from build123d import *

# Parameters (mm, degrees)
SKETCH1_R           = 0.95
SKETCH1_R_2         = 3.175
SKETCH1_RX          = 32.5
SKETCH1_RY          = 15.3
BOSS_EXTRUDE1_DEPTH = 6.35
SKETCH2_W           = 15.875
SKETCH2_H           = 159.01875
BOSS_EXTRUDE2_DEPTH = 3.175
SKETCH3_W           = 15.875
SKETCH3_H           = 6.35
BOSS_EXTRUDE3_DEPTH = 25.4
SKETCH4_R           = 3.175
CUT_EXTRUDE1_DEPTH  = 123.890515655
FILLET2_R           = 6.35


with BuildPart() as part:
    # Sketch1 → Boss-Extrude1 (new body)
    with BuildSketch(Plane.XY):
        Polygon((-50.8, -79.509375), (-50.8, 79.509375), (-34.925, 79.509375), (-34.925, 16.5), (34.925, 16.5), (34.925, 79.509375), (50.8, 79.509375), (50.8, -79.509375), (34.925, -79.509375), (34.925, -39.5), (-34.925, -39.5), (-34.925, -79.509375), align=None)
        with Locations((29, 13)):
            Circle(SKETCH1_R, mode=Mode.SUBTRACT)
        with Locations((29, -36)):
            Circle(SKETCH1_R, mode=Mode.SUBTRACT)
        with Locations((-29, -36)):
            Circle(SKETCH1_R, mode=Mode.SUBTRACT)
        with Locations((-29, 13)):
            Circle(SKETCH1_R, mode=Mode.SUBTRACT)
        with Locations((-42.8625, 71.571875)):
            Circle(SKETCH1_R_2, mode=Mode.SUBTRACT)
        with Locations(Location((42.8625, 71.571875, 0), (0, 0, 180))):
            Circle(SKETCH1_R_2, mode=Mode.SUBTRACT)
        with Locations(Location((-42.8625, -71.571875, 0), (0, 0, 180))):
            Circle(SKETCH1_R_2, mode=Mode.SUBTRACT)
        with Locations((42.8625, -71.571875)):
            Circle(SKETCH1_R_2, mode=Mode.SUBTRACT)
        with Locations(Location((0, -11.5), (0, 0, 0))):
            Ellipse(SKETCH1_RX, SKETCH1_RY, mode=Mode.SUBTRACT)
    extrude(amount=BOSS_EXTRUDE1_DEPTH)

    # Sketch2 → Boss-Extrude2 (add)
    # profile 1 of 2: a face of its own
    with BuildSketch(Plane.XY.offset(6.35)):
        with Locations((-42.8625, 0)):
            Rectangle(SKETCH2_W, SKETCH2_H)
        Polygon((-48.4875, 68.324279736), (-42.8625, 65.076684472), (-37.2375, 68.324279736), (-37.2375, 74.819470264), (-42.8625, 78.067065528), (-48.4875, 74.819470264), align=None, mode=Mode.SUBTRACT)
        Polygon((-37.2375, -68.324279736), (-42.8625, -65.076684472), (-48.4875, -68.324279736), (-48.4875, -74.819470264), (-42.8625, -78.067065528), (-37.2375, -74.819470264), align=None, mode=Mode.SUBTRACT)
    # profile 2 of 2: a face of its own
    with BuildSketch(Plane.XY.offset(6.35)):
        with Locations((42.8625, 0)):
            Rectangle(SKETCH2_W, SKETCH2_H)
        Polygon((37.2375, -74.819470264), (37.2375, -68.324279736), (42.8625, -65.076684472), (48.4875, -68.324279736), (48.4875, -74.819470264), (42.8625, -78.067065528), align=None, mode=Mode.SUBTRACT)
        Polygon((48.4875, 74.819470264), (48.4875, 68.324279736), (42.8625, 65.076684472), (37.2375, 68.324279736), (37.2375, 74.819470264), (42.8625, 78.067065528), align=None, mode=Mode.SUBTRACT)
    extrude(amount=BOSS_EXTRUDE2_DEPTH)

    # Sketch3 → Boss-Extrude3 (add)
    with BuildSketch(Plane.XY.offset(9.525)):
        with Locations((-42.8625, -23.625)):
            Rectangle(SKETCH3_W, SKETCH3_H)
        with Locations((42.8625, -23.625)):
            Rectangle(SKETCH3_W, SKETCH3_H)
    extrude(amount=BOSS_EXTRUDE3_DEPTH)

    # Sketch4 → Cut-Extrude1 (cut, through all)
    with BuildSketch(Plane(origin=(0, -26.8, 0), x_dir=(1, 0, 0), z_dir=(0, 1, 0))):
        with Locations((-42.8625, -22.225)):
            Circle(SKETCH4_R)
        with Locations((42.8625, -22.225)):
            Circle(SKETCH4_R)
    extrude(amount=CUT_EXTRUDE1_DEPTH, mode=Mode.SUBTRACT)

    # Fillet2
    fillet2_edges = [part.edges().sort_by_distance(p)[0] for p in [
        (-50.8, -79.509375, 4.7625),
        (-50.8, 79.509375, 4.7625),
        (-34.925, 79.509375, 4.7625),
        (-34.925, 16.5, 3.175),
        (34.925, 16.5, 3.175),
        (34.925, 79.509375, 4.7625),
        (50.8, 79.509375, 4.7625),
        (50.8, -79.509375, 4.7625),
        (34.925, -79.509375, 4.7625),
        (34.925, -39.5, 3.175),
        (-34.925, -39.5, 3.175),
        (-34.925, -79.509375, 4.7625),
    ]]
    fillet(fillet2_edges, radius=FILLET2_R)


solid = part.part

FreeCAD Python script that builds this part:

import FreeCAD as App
import Part
import Sketcher

V = App.Vector
Q = App.Units.Quantity


def edges_at(feature, points):
    """Names of the edges that pass closest to the given points."""
    edges = feature.Shape.Edges
    near = lambda p: min(range(len(edges)), key=lambda i: edges[i].distToShape(Part.Vertex(*p))[0])
    return sorted({f"Edge{near(p) + 1}" for p in points})


def add_polygon(sketch, points):
    """Adds a closed chain of lines whose ends are joined by coincident constraints."""
    first, n = sketch.GeometryCount, len(points)
    for a, b in zip(points, points[1:] + points[:1]):
        sketch.addGeometry(Part.LineSegment(App.Vector(*a, 0), App.Vector(*b, 0)), False)
    for i in range(n):
        sketch.addConstraint(Sketcher.Constraint("Coincident", first + i, 2, first + (i + 1) % n, 1))

doc = App.newDocument("Part")
body = doc.addObject("PartDesign::Body", "Body")

sketch1 = body.newObject("Sketcher::SketchObject", "Sketch")
sketch1.AttachmentSupport = (doc.getObject("XY_Plane"), [""])
sketch1.MapMode = "FlatFace"
add_polygon(sketch1, [(-50.8, 79.509375), (-50.8, -79.509375), (-34.925, -79.509375), (-34.925, -39.5), (34.925, -39.5), (34.925, -79.509375), (50.8, -79.509375), (50.8, 79.509375), (34.925, 79.509375), (34.925, 16.5), (-34.925, 16.5), (-34.925, 79.509375)])
sketch1.addGeometry(Part.Circle(V(42.8625, -71.571875, 0), V(0, 0, 1), 3.175), False)
sketch1.addGeometry(Part.Circle(V(29, -36, 0), V(0, 0, 1), 0.95), False)
sketch1.addGeometry(Part.Circle(V(-42.8625, -71.571875, 0), V(0, 0, 1), 3.175), False)
sketch1.addGeometry(Part.Ellipse(V(32.5, -11.5, 0), V(0, 3.8, 0), V(0, -11.5, 0)), False)
sketch1.addGeometry(Part.Circle(V(-29, -36, 0), V(0, 0, 1), 0.95), False)
sketch1.addGeometry(Part.Circle(V(29, 13, 0), V(0, 0, 1), 0.95), False)
sketch1.addGeometry(Part.Circle(V(42.8625, 71.571875, 0), V(0, 0, 1), 3.175), False)
sketch1.addGeometry(Part.Circle(V(-29, 13, 0), V(0, 0, 1), 0.95), False)
sketch1.addGeometry(Part.Circle(V(-42.8625, 71.571875, 0), V(0, 0, 1), 3.175), False)
sketch1.addConstraint(Sketcher.Constraint("Block", 15))
sketch1.addConstraint(Sketcher.Constraint("Vertical", 0))
sketch1.addConstraint(Sketcher.Constraint("Horizontal", 1))
sketch1.addConstraint(Sketcher.Constraint("Vertical", 2))
sketch1.addConstraint(Sketcher.Constraint("Horizontal", 3))
sketch1.addConstraint(Sketcher.Constraint("Vertical", 4))
sketch1.addConstraint(Sketcher.Constraint("Horizontal", 5))
sketch1.addConstraint(Sketcher.Constraint("Vertical", 6))
sketch1.addConstraint(Sketcher.Constraint("Horizontal", 7))
sketch1.addConstraint(Sketcher.Constraint("Vertical", 8))
sketch1.addConstraint(Sketcher.Constraint("Horizontal", 9))
sketch1.addConstraint(Sketcher.Constraint("Vertical", 10))
sketch1.addConstraint(Sketcher.Constraint("Horizontal", 11))
sketch1.addConstraint(Sketcher.Constraint("Equal", 12, 14))
sketch1.addConstraint(Sketcher.Constraint("Equal", 13, 16))
sketch1.addConstraint(Sketcher.Constraint("Equal", 16, 17))
sketch1.addConstraint(Sketcher.Constraint("Equal", 14, 18))
sketch1.addConstraint(Sketcher.Constraint("Equal", 17, 19))
sketch1.addConstraint(Sketcher.Constraint("Equal", 18, 20))
sketch1.addConstraint(Sketcher.Constraint("Symmetric", 14, 3, 18, 3, -1, 1))
sketch1.addConstraint(Sketcher.Constraint("Symmetric", 12, 3, 20, 3, -1, 1))
sketch1.addConstraint(Sketcher.Constraint("Symmetric", 0, 2, 6, 2, -1, 1))
sketch1.addConstraint(Sketcher.Constraint("Symmetric", 4, 2, 10, 2, -1, 1))
sketch1.addConstraint(Sketcher.Constraint("Symmetric", 12, 3, 14, 3, -2))
sketch1.addConstraint(Sketcher.Constraint("Symmetric", 13, 3, 16, 3, -2))
sketch1.addConstraint(Sketcher.Constraint("Symmetric", 17, 3, 19, 3, -2))
sketch1.addConstraint(Sketcher.Constraint("Symmetric", 1, 2, 4, 2, -2))
sketch1.addConstraint(Sketcher.Constraint("Vertical", 13, 3, 17, 3))
sketch1.addConstraint(Sketcher.Constraint("Vertical", 4, 2, 7, 2))
sketch1.addConstraint(Sketcher.Constraint("Diameter", 12, Q("0.25 in")))
sketch1.addConstraint(Sketcher.Constraint("DistanceX", 0, 2, -1, 1, Q("2 in")))
sketch1.addConstraint(Sketcher.Constraint("DistanceX", 3, 1, 3, 2, Q("2.75 in")))
sketch1.addConstraint(Sketcher.Constraint("Diameter", 13, Q("1.9 mm")))
sketch1.addConstraint(Sketcher.Constraint("DistanceX", -1, 1, 12, 3, Q("1.6875 in")))
sketch1.addConstraint(Sketcher.Constraint("DistanceY", 0, 2, 14, 3, Q("0.3125 in")))
sketch1.addConstraint(Sketcher.Constraint("DistanceY", 0, 2, 0, 1, Q("159.01875 mm")))
sketch1.addConstraint(Sketcher.Constraint("DistanceX", -1, 1, 13, 3, Q("29 mm")))
sketch1.addConstraint(Sketcher.Constraint("DistanceY", 13, 3, -1, 1, Q("36 mm")))
sketch1.addConstraint(Sketcher.Constraint("DistanceY", -1, 1, 17, 3, Q("13 mm")))
sketch1.addConstraint(Sketcher.Constraint("DistanceY", 2, 2, -1, 1, Q("39.5 mm")))
sketch1.addConstraint(Sketcher.Constraint("DistanceY", -1, 1, 8, 2, Q("16.5 mm")))
pad1 = body.newObject("PartDesign::Pad", "Pad")
pad1.Profile = sketch1
pad1.Length = Q("0.25 in")

sketch2 = body.newObject("Sketcher::SketchObject", "Sketch001")
sketch2.AttachmentSupport = (doc.getObject("XY_Plane"), [""])
sketch2.MapMode = "FlatFace"
sketch2.AttachmentOffset = App.Placement(V(0, 0, 0.25 * 25.4), App.Rotation())
add_polygon(sketch2, [(-50.8, 79.509375), (-50.8, -79.509375), (-34.925, -79.509375), (-34.925, 79.509375)])
add_polygon(sketch2, [(-42.8625, -65.076684), (-37.2375, -68.32428), (-37.2375, -74.81947), (-42.8625, -78.067066), (-48.4875, -74.81947), (-48.4875, -68.32428)])
add_polygon(sketch2, [(-42.8625, 65.076684), (-48.4875, 68.32428), (-48.4875, 74.81947), (-42.8625, 78.067066), (-37.2375, 74.81947), (-37.2375, 68.32428)])
add_polygon(sketch2, [(34.925, 79.509375), (34.925, -79.509375), (50.8, -79.509375), (50.8, 79.509375)])
add_polygon(sketch2, [(42.8625, -78.067066), (37.2375, -74.81947), (37.2375, -68.32428), (42.8625, -65.076684), (48.4875, -68.32428), (48.4875, -74.81947)])
add_polygon(sketch2, [(42.8625, 78.067066), (48.4875, 74.81947), (48.4875, 68.32428), (42.8625, 65.076684), (37.2375, 68.32428), (37.2375, 74.81947)])
sketch2.addConstraint(Sketcher.Constraint("Vertical", 0))
sketch2.addConstraint(Sketcher.Constraint("Horizontal", 1))
sketch2.addConstraint(Sketcher.Constraint("Vertical", 2))
sketch2.addConstraint(Sketcher.Constraint("Horizontal", 3))
sketch2.addConstraint(Sketcher.Constraint("Vertical", 5))
sketch2.addConstraint(Sketcher.Constraint("Vertical", 8))
sketch2.addConstraint(Sketcher.Constraint("Vertical", 11))
sketch2.addConstraint(Sketcher.Constraint("Vertical", 14))
sketch2.addConstraint(Sketcher.Constraint("Vertical", 16))
sketch2.addConstraint(Sketcher.Constraint("Horizontal", 17))
sketch2.addConstraint(Sketcher.Constraint("Vertical", 18))
sketch2.addConstraint(Sketcher.Constraint("Horizontal", 19))
sketch2.addConstraint(Sketcher.Constraint("Vertical", 21))
sketch2.addConstraint(Sketcher.Constraint("Vertical", 24))
sketch2.addConstraint(Sketcher.Constraint("Vertical", 27))
sketch2.addConstraint(Sketcher.Constraint("Vertical", 30))
sketch2.addConstraint(Sketcher.Constraint("Symmetric", 2, 2, 16, 2, -1, 1))
sketch2.addConstraint(Sketcher.Constraint("Symmetric", 0, 2, 18, 2, -1, 1))
sketch2.addConstraint(Sketcher.Constraint("Symmetric", 13, 2, 20, 2, -1, 1))
sketch2.addConstraint(Sketcher.Constraint("Symmetric", 15, 2, 22, 2, -1, 1))
sketch2.addConstraint(Sketcher.Constraint("Symmetric", 10, 2, 23, 2, -1, 1))
sketch2.addConstraint(Sketcher.Constraint("Symmetric", 12, 2, 25, 2, -1, 1))
sketch2.addConstraint(Sketcher.Constraint("Symmetric", 7, 2, 26, 2, -1, 1))
sketch2.addConstraint(Sketcher.Constraint("Symmetric", 9, 2, 28, 2, -1, 1))
sketch2.addConstraint(Sketcher.Constraint("Symmetric", 4, 2, 29, 2, -1, 1))
sketch2.addConstraint(Sketcher.Constraint("Symmetric", 6, 2, 31, 2, -1, 1))
sketch2.addConstraint(Sketcher.Constraint("Symmetric", 5, 2, 20, 2, -2))
sketch2.addConstraint(Sketcher.Constraint("Symmetric", 9, 2, 22, 2, -2))
sketch2.addConstraint(Sketcher.Constraint("Symmetric", 8, 2, 23, 2, -2))
sketch2.addConstraint(Sketcher.Constraint("Symmetric", 6, 2, 25, 2, -2))
sketch2.addConstraint(Sketcher.Constraint("Parallel", 4, 7))
sketch2.addConstraint(Sketcher.Constraint("Parallel", 6, 9))
sketch2.addConstraint(Sketcher.Constraint("Parallel", 7, 10))
sketch2.addConstraint(Sketcher.Constraint("Parallel", 9, 12))
sketch2.addConstraint(Sketcher.Constraint("Parallel", 12, 15))
sketch2.addConstraint(Sketcher.Constraint("Parallel", 15, 22))
sketch2.addConstraint(Sketcher.Constraint("Parallel", 22, 25))
sketch2.addConstraint(Sketcher.Constraint("Parallel", 25, 28))
sketch2.addConstraint(Sketcher.Constraint("Parallel", 28, 31))
sketch2.addConstraint(Sketcher.Constraint("Horizontal", 5, 2, 7, 2))
sketch2.addConstraint(Sketcher.Constraint("Horizontal", 4, 2, 8, 2))
sketch2.addConstraint(Sketcher.Constraint("Horizontal", 1, 2, 16, 2))
sketch2.addConstraint(Sketcher.Constraint("DistanceX", 0, 2, -1, 1, Q("2 in")))
sketch2.addConstraint(Sketcher.Constraint("Angle", 4, Q("-30 deg")))
sketch2.addConstraint(Sketcher.Constraint("DistanceX", 1, 1, 1, 2, Q("0.625 in")))
sketch2.addConstraint(Sketcher.Constraint("DistanceX", 6, 2, -1, 1, Q("1.6875 in")))
sketch2.addConstraint(Sketcher.Constraint("DistanceY", 0, 2, 0, 1, Q("159.01875 mm")))
sketch2.addConstraint(Sketcher.Constraint("DistanceY", 5, 2, 5, 1, Q("6.495191 mm")))
sketch2.addConstraint(Sketcher.Constraint("DistanceX", 4, 2, -1, 1, Q("37.2375 mm")))
sketch2.addConstraint(Sketcher.Constraint("DistanceY", 4, 2, -1, 1, Q("68.32428 mm")))
pad2 = body.newObject("PartDesign::Pad", "Pad001")
pad2.Profile = sketch2
pad2.Length = Q("0.125 in")

sketch3 = body.newObject("Sketcher::SketchObject", "Sketch002")
sketch3.AttachmentSupport = (doc.getObject("XY_Plane"), [""])
sketch3.MapMode = "FlatFace"
sketch3.AttachmentOffset = App.Placement(V(0, 0, 0.375 * 25.4), App.Rotation())
add_polygon(sketch3, [(-50.8, -20.45), (-50.8, -26.8), (-34.925, -26.8), (-34.925, -20.45)])
add_polygon(sketch3, [(34.925, -20.45), (34.925, -26.8), (50.8, -26.8), (50.8, -20.45)])
sketch3.addConstraint(Sketcher.Constraint("Vertical", 0))
sketch3.addConstraint(Sketcher.Constraint("Horizontal", 1))
sketch3.addConstraint(Sketcher.Constraint("Vertical", 2))
sketch3.addConstraint(Sketcher.Constraint("Horizontal", 3))
sketch3.addConstraint(Sketcher.Constraint("Vertical", 4))
sketch3.addConstraint(Sketcher.Constraint("Horizontal", 5))
sketch3.addConstraint(Sketcher.Constraint("Vertical", 6))
sketch3.addConstraint(Sketcher.Constraint("Horizontal", 7))
sketch3.addConstraint(Sketcher.Constraint("Symmetric", 1, 2, 4, 2, -2))
sketch3.addConstraint(Sketcher.Constraint("Symmetric", 3, 2, 6, 2, -2))
sketch3.addConstraint(Sketcher.Constraint("DistanceX", 0, 2, -1, 1, Q("2 in")))
sketch3.addConstraint(Sketcher.Constraint("DistanceY", 0, 2, 0, 1, Q("0.25 in")))
sketch3.addConstraint(Sketcher.Constraint("DistanceX", 1, 1, 1, 2, Q("0.625 in")))
sketch3.addConstraint(Sketcher.Constraint("DistanceY", 0, 2, -1, 1, Q("26.8 mm")))
pad3 = body.newObject("PartDesign::Pad", "Pad002")
pad3.Profile = sketch3
pad3.Length = Q("1 in")

sketch4 = body.newObject("Sketcher::SketchObject", "Sketch003")
sketch4.AttachmentSupport = (doc.getObject("XZ_Plane"), [""])
sketch4.MapMode = "FlatFace"
sketch4.AttachmentOffset = App.Placement(V(0, 0, 26.8), App.Rotation())
sketch4.addGeometry(Part.Circle(V(-42.8625, 22.225, 0), V(0, 0, 1), 3.175), False)
sketch4.addGeometry(Part.Circle(V(42.8625, 22.225, 0), V(0, 0, 1), 3.175), False)
sketch4.addConstraint(Sketcher.Constraint("Equal", 0, 1))
sketch4.addConstraint(Sketcher.Constraint("Symmetric", 0, 3, 1, 3, -2))
sketch4.addConstraint(Sketcher.Constraint("Diameter", 0, Q("0.25 in")))
sketch4.addConstraint(Sketcher.Constraint("DistanceX", 0, 3, -1, 1, Q("1.6875 in")))
sketch4.addConstraint(Sketcher.Constraint("DistanceY", -1, 1, 0, 3, Q("0.875 in")))
pocket1 = body.newObject("PartDesign::Pocket", "Pocket")
pocket1.Profile = sketch4
pocket1.Type = "ThroughAll"
doc.recompute()

fillet = body.newObject("PartDesign::Fillet", "Fillet")
fillet.Base = (pocket1, edges_at(pocket1, [
    (-50.8, -79.509, 4.763),
    (-50.8, 79.509, 4.763),
    (-34.925, 79.509, 4.763),
    (-34.925, 16.5, 3.175),
    (34.925, 16.5, 3.175),
    (34.925, 79.509, 4.763),
    (50.8, 79.509, 4.763),
    (50.8, -79.509, 4.763),
    (34.925, -79.509, 4.763),
    (34.925, -39.5, 3.175),
    (-34.925, -39.5, 3.175),
    (-34.925, -79.509, 4.763),
]))
fillet.Radius = Q("0.25 in")

doc.recompute()
